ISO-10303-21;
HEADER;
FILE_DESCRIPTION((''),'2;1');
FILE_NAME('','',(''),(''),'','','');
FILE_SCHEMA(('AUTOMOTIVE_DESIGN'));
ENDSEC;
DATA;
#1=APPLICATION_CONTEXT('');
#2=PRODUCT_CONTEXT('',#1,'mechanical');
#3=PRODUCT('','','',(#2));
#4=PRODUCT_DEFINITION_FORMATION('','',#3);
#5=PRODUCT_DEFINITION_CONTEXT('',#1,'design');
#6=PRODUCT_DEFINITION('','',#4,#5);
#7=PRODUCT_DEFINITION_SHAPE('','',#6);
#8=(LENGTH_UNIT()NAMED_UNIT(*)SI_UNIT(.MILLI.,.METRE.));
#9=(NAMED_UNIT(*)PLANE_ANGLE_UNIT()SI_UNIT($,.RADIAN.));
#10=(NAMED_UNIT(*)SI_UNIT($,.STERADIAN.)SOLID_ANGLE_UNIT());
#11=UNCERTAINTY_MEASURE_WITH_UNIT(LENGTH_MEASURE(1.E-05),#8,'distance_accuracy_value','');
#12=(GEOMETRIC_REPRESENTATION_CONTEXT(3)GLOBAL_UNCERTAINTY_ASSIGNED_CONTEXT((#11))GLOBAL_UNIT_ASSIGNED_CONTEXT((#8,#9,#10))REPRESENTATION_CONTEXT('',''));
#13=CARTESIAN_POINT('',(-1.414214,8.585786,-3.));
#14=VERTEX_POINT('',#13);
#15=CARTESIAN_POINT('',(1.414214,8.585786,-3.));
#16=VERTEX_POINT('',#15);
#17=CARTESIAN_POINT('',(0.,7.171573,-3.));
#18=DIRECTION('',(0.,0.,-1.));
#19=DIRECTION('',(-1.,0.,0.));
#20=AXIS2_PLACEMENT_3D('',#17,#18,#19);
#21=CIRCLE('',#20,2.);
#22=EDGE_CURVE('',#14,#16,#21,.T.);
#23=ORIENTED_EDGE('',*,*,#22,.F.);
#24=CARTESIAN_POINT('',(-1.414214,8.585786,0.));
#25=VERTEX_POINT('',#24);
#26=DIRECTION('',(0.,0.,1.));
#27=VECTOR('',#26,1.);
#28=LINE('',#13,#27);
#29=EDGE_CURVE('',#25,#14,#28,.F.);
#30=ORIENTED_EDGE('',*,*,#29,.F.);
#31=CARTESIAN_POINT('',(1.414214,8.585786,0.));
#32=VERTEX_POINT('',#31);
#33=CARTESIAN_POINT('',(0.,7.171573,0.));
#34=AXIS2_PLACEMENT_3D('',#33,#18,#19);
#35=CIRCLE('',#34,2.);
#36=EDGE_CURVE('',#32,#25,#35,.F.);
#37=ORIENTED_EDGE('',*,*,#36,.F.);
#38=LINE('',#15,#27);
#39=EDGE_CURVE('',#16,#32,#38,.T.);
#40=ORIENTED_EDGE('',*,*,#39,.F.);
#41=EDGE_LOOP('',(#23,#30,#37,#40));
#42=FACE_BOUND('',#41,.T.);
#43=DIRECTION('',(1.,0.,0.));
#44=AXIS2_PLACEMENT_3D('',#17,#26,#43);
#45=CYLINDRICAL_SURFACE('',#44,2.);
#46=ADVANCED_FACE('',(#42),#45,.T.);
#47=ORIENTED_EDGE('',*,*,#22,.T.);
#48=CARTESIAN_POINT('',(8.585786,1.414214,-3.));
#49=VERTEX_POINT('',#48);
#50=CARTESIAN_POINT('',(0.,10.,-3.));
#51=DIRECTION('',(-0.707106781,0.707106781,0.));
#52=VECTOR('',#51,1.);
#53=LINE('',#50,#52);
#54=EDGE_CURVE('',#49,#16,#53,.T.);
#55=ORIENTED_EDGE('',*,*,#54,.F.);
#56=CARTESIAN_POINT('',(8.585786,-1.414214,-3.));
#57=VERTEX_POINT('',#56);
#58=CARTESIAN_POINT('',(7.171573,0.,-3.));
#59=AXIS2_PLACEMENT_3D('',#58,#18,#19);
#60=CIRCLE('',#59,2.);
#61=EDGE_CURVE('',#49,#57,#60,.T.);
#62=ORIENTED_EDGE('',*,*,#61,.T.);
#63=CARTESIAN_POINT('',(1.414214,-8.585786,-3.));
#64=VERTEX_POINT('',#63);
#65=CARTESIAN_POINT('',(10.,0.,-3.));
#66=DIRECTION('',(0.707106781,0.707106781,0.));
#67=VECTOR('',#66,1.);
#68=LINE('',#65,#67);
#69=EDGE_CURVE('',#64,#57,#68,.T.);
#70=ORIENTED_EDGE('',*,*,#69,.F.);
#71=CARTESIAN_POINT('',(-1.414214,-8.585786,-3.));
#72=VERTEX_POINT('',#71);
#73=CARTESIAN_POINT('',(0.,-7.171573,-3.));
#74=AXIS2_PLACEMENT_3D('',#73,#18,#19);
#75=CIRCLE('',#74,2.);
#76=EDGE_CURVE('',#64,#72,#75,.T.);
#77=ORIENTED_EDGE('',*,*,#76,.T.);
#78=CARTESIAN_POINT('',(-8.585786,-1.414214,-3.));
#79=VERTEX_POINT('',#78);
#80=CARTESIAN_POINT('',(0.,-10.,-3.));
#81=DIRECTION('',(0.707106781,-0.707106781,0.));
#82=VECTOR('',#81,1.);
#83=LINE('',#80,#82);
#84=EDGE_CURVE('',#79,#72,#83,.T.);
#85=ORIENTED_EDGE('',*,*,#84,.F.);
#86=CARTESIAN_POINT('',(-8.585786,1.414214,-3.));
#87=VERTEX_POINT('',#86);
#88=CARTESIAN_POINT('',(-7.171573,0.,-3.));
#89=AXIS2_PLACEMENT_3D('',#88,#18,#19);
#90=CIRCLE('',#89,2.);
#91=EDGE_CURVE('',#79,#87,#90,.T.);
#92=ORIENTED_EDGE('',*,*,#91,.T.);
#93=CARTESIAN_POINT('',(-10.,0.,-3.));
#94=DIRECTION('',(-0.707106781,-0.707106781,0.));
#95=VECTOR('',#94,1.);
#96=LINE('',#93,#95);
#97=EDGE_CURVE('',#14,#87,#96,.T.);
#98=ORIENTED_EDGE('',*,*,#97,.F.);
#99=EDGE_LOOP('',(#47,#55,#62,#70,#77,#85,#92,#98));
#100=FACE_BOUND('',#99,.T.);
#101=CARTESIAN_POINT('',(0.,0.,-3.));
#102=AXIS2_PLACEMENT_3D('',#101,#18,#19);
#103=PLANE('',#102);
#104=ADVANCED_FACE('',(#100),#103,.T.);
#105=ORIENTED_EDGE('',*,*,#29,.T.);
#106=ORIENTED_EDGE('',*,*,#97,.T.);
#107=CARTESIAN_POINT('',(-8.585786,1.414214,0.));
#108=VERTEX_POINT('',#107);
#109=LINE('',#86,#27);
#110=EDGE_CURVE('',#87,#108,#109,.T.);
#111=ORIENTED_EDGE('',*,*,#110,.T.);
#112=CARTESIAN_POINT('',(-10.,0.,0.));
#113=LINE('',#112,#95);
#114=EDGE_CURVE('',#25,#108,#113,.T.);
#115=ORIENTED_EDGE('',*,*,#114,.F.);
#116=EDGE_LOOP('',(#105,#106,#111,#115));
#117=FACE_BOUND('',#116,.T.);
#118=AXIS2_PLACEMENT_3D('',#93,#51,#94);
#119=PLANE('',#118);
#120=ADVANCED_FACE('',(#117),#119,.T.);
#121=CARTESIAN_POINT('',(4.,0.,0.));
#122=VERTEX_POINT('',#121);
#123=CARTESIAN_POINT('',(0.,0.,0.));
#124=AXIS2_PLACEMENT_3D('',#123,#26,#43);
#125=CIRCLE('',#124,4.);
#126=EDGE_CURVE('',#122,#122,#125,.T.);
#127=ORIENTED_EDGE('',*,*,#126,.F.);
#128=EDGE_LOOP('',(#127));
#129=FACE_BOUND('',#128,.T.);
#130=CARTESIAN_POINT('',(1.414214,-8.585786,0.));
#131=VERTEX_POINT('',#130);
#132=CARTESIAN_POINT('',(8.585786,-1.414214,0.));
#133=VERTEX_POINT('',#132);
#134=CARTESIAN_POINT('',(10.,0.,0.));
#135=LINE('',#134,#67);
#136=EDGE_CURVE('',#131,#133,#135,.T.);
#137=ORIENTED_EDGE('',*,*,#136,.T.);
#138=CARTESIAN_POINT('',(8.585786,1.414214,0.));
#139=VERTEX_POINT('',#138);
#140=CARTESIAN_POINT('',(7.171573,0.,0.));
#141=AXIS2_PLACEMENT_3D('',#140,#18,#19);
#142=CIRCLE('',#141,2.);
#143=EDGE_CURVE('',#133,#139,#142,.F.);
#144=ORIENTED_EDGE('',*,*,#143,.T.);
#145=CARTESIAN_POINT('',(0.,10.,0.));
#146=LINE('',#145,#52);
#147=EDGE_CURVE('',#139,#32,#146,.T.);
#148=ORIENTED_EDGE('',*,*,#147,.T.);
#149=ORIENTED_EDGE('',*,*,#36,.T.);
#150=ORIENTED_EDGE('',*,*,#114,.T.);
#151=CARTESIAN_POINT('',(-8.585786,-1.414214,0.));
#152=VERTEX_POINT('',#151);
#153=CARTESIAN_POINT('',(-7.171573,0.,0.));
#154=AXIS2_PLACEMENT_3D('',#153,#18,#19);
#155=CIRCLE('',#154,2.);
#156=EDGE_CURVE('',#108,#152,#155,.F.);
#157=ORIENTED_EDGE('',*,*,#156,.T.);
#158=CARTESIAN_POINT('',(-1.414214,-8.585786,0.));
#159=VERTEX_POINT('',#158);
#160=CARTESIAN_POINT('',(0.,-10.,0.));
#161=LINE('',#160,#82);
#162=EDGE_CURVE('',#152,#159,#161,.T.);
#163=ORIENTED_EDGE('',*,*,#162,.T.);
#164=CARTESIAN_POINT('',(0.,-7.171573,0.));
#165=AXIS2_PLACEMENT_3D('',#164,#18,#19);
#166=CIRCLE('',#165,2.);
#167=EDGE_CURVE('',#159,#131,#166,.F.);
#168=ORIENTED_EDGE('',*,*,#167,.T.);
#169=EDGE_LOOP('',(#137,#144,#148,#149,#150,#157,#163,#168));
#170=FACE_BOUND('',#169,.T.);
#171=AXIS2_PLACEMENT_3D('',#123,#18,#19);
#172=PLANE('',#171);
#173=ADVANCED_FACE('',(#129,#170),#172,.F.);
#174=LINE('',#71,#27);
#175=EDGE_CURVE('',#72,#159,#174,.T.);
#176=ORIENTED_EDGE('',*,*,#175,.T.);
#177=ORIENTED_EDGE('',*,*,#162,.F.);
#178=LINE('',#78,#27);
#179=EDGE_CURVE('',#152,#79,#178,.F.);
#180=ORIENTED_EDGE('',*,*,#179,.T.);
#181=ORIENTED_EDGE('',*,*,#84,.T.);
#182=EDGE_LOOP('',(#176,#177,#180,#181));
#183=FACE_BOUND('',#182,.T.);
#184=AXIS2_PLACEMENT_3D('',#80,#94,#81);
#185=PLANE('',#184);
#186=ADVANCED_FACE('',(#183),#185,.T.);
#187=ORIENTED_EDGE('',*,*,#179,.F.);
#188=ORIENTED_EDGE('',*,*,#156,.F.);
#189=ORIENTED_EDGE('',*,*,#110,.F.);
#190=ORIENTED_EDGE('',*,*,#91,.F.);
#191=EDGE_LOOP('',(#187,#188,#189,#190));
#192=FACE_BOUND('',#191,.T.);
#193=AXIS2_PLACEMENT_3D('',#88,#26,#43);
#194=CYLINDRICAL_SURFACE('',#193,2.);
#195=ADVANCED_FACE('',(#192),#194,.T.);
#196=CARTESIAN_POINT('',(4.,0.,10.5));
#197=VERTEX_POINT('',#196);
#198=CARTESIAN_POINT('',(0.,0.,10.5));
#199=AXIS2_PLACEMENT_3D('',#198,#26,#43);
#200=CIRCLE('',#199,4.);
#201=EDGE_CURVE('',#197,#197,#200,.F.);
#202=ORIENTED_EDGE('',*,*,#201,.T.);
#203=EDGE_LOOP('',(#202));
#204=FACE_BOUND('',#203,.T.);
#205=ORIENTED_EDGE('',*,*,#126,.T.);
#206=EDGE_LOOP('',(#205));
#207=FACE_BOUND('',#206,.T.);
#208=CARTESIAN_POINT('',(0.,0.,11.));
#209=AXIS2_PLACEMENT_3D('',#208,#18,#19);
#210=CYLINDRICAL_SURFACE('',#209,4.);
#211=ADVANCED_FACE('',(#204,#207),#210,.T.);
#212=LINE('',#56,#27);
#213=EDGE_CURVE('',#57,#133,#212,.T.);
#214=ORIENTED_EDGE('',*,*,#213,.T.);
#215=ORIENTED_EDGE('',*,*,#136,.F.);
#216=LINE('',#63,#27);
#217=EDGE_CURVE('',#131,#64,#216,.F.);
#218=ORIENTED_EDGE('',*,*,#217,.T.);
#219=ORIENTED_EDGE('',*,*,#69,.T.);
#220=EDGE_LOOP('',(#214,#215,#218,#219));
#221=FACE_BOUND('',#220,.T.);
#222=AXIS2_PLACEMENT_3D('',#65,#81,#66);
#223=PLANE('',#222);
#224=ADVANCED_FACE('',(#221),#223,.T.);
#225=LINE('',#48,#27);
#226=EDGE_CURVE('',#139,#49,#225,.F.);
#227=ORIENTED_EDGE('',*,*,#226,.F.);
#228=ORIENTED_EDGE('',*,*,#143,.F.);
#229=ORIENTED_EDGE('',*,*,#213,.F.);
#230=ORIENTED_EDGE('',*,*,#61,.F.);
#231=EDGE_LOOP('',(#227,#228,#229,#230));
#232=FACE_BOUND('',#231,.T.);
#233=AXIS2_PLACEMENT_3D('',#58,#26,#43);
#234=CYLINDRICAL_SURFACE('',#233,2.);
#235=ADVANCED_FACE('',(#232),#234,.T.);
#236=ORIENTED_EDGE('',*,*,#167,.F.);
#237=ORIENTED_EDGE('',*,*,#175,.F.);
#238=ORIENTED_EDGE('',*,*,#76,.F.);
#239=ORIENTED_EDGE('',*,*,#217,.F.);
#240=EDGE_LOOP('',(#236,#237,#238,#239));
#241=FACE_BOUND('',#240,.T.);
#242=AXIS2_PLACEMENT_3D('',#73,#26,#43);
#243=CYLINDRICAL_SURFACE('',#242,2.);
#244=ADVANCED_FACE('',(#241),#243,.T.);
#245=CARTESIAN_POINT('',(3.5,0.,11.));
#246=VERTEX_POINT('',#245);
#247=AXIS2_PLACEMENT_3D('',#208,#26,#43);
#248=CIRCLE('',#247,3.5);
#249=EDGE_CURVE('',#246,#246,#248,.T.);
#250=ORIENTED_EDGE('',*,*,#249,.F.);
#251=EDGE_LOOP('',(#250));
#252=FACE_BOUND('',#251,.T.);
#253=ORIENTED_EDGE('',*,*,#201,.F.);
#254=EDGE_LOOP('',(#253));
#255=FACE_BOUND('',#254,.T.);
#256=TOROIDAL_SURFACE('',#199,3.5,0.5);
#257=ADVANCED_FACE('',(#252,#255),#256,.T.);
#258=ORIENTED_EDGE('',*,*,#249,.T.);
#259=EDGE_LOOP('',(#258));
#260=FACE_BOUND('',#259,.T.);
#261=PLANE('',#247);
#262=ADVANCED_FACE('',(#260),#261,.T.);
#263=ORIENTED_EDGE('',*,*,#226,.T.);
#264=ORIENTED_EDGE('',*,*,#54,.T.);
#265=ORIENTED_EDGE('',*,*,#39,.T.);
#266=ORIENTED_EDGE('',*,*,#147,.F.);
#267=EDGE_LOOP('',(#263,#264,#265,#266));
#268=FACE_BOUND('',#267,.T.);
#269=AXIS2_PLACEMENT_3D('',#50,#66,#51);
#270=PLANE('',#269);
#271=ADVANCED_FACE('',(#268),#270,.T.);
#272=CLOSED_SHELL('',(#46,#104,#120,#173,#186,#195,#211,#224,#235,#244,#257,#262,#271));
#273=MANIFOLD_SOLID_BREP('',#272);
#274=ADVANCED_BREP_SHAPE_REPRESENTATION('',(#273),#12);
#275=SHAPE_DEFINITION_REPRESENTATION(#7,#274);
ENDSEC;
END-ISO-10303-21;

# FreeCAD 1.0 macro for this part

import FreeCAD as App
import Part
import Sketcher
Q = App.Units.Quantity


def edges_at(feature, points):
    """Names of the edges that pass closest to the given points."""
    edges = feature.Shape.Edges
    near = lambda p: min(range(len(edges)), key=lambda i: edges[i].distToShape(Part.Vertex(*p))[0])
    return sorted({f"Edge{near(p) + 1}" for p in points})

doc = App.newDocument("Part")
params = doc.addObject("Spreadsheet::Sheet", "Params")
for row, (alias, value) in enumerate([
    ("pad1_length", "3 mm"),
    ("sketch2_diameter", "8 mm"),
    ("pad2_length", "11 mm"),
    ("fillet_radius", "2 mm"),
    ("fillet2_radius", "0.5 mm"),
], start=1):
    params.set(f"A{row}", alias)
    params.set(f"B{row}", "=" + value)
    params.setAlias(f"B{row}", alias)

body = doc.addObject("PartDesign::Body", "Body")

sketch1 = body.newObject("Sketcher::SketchObject", "Sketch")
sketch1.AttachmentSupport = (doc.getObject("XY_Plane"), [""])
sketch1.MapMode = "FlatFace"
sketch1.addGeometry(Part.LineSegment(App.Vector(10, 0, 0), App.Vector(0, 10, 0)), False)
sketch1.addGeometry(Part.LineSegment(App.Vector(0, 10, 0), App.Vector(-10, 0, 0)), False)
sketch1.addGeometry(Part.LineSegment(App.Vector(-10, 0, 0), App.Vector(0, -10, 0)), False)
sketch1.addGeometry(Part.LineSegment(App.Vector(0, -10, 0), App.Vector(10, 0, 0)), False)
sketch1.addConstraint(Sketcher.Constraint("Coincident", 0, 2, 1, 1))
sketch1.addConstraint(Sketcher.Constraint("Coincident", 1, 2, 2, 1))
sketch1.addConstraint(Sketcher.Constraint("Coincident", 2, 2, 3, 1))
sketch1.addConstraint(Sketcher.Constraint("Coincident", 3, 2, 0, 1))
sketch1.addConstraint(Sketcher.Constraint("Symmetric", 0, 2, 2, 2, -1, 1))
sketch1.addConstraint(Sketcher.Constraint("Symmetric", 1, 2, 3, 2, -1, 1))
sketch1.addConstraint(Sketcher.Constraint("PointOnObject", 0, 2, -2))
sketch1.addConstraint(Sketcher.Constraint("PointOnObject", 1, 2, -1))
sketch1.addConstraint(Sketcher.Constraint("Perpendicular", 0, 1))
sketch1.addConstraint(Sketcher.Constraint("DistanceY", -1, 1, 0, 2, Q("10 mm")))
pad1 = body.newObject("PartDesign::Pad", "Pad")
pad1.Profile = sketch1
pad1.setExpression("Length", "Params.pad1_length")
pad1.Reversed = True

sketch2 = body.newObject("Sketcher::SketchObject", "Sketch001")
sketch2.AttachmentSupport = (doc.getObject("XY_Plane"), [""])
sketch2.MapMode = "FlatFace"
sketch2.addGeometry(Part.Circle(App.Vector(0, 0, 0), App.Vector(0, 0, 1), 4), False)
sketch2.addConstraint(Sketcher.Constraint("Coincident", 0, 3, -1, 1))
sketch2.addConstraint(Sketcher.Constraint("Diameter", 0, Q("8 mm")))
sketch2.setExpression("Constraints[1]", "Params.sketch2_diameter")
pad2 = body.newObject("PartDesign::Pad", "Pad001")
pad2.Profile = sketch2
pad2.setExpression("Length", "Params.pad2_length")
doc.recompute()

fillet = body.newObject("PartDesign::Fillet", "Fillet")
fillet.Base = (pad2, edges_at(pad2, [
    (0, 10, -1.5),
    (10, 0, -1.5),
    (0, -10, -1.5),
    (-10, 0, -1.5),
]))
fillet.setExpression("Radius", "Params.fillet_radius")
doc.recompute()

fillet2 = body.newObject("PartDesign::Fillet", "Fillet001")
fillet2.Base = (fillet, edges_at(fillet, [(-4, 0, 11)]))
fillet2.setExpression("Radius", "Params.fillet2_radius")

doc.recompute()
